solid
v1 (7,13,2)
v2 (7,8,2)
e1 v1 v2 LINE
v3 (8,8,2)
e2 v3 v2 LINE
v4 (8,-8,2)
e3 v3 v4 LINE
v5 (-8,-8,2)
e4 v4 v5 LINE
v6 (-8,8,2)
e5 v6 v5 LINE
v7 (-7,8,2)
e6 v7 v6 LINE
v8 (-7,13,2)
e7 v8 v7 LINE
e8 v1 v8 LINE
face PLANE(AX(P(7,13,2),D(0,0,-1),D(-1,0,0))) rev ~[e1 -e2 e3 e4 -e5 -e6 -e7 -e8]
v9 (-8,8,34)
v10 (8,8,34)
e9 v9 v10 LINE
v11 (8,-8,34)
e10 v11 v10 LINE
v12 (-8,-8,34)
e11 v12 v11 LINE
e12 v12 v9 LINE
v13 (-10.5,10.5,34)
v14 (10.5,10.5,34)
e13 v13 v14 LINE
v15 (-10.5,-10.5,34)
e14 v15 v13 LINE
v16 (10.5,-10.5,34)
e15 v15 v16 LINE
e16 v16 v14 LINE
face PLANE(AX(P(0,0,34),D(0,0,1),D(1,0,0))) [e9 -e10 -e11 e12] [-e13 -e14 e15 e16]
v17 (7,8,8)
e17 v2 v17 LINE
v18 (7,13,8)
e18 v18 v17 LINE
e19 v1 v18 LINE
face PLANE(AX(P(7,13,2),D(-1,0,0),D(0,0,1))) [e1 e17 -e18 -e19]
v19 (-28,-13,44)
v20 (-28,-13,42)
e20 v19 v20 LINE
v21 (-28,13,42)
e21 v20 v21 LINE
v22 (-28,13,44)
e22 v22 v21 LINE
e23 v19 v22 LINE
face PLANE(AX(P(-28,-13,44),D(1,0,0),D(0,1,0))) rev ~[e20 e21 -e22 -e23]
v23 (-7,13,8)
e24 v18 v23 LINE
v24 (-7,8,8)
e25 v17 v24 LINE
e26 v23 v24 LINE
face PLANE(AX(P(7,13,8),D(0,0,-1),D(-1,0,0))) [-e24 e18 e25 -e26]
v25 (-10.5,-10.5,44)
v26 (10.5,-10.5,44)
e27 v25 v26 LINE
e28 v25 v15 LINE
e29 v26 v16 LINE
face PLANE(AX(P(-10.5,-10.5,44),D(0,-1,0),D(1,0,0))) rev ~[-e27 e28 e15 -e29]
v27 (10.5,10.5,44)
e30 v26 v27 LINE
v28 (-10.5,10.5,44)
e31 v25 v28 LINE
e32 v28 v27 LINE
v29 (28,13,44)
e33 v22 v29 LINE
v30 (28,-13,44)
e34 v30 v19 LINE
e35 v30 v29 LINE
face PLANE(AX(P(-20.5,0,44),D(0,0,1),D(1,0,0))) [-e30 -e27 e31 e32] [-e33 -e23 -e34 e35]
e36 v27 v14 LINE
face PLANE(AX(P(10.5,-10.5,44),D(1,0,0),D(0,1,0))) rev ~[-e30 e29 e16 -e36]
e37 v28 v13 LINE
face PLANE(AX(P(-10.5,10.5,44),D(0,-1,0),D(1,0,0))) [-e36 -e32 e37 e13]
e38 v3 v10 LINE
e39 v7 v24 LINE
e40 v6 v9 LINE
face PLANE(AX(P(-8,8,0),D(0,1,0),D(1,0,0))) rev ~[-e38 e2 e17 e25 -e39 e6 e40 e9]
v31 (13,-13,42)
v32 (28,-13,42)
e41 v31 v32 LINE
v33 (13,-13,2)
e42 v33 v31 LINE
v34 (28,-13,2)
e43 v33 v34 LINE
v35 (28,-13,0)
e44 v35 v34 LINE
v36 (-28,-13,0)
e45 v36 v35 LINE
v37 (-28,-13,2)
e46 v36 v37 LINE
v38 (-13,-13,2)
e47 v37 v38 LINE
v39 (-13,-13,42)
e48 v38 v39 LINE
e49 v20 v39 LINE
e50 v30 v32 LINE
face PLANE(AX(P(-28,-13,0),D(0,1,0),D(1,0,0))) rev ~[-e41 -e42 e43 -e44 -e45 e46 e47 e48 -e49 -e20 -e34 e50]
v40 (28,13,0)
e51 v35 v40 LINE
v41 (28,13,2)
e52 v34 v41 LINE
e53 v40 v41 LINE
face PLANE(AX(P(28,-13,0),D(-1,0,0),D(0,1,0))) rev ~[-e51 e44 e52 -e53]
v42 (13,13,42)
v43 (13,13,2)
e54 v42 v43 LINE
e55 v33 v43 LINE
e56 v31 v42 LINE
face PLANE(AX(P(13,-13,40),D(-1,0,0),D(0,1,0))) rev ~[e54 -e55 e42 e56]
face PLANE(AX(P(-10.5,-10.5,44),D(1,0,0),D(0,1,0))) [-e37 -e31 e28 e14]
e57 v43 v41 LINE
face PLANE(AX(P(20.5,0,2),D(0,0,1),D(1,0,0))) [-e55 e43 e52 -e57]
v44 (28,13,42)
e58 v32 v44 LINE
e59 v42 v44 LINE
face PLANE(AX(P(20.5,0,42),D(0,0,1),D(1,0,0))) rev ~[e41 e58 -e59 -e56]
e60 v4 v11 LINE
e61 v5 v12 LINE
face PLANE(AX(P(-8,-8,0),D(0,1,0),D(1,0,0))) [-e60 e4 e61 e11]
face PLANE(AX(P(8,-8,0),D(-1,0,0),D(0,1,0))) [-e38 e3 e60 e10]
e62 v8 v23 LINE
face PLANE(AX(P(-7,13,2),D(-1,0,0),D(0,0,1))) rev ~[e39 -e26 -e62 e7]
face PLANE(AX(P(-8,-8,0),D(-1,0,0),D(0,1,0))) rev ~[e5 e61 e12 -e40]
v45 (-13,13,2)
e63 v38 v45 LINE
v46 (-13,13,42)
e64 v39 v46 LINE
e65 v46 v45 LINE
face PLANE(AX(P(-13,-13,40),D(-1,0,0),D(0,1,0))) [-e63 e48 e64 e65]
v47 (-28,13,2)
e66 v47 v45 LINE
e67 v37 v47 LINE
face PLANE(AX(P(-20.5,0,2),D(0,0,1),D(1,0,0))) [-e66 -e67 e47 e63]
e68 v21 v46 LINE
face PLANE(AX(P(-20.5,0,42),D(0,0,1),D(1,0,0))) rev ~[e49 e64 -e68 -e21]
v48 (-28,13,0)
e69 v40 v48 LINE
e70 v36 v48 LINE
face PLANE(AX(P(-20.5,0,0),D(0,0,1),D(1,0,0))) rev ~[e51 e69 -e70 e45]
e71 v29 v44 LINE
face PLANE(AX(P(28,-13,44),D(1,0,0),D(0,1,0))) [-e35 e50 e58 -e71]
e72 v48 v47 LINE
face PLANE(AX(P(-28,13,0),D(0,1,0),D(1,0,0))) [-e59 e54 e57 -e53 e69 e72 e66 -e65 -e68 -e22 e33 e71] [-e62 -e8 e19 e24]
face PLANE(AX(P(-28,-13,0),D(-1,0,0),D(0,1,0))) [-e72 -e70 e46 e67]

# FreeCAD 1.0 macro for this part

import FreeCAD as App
import Part
import Sketcher


def add_polygon(sketch, points):
    """Adds a closed chain of lines whose ends are joined by coincident constraints."""
    first, n = sketch.GeometryCount, len(points)
    for a, b in zip(points, points[1:] + points[:1]):
        sketch.addGeometry(Part.LineSegment(App.Vector(*a, 0), App.Vector(*b, 0)), False)
    for i in range(n):
        sketch.addConstraint(Sketcher.Constraint("Coincident", first + i, 2, first + (i + 1) % n, 1))

doc = App.newDocument("Part")
body = doc.addObject("PartDesign::Body", "Body")

# Sketch on XY plane
sketch1 = body.newObject("Sketcher::SketchObject", "Sketch")
sketch1.AttachmentSupport = (doc.getObject("XY_Plane"), [""])
sketch1.MapMode = "FlatFace"
add_polygon(sketch1, [(-13, 13), (-13, -13), (13, -13), (13, 13)])  # lines 0-3
sketch1.addConstraint([
    Sketcher.Constraint("Vertical", 0),
    Sketcher.Constraint("Horizontal", 1),
    Sketcher.Constraint("Vertical", 2),
    Sketcher.Constraint("Horizontal", 3),
    Sketcher.Constraint("Symmetric", 0, 2, 2, 2, -1, 1),
    Sketcher.Constraint("Equal", 3, 0),
    Sketcher.Constraint("DistanceX", 1, 1, 1, 2, 26.0),
])
pad1 = body.newObject("PartDesign::Pad", "Pad")
pad1.Profile = sketch1
pad1.Length = 2

# Sketch on XY plane
sketch2 = body.newObject("Sketcher::SketchObject", "Sketch001")
sketch2.AttachmentSupport = (doc.getObject("XY_Plane"), [""])
sketch2.MapMode = "FlatFace"
add_polygon(sketch2, [(-13, 13), (-13, -13), (13, -13), (13, 13)])  # lines 0-3
add_polygon(sketch2, [(8, -8), (-8, -8), (-8, 8), (8, 8)])  # lines 4-7
sketch2.addConstraint([
    Sketcher.Constraint("Vertical", 0),
    Sketcher.Constraint("Horizontal", 1),
    Sketcher.Constraint("Vertical", 2),
    Sketcher.Constraint("Horizontal", 3),
    Sketcher.Constraint("Horizontal", 4),
    Sketcher.Constraint("Vertical", 5),
    Sketcher.Constraint("Horizontal", 6),
    Sketcher.Constraint("Vertical", 7),
    Sketcher.Constraint("Symmetric", 0, 2, 2, 2, -1, 1),
    Sketcher.Constraint("Symmetric", 4, 2, 6, 2, -1, 1),
    Sketcher.Constraint("Equal", 3, 0),
    Sketcher.Constraint("Equal", 6, 5),
    Sketcher.Constraint("DistanceX", 1, 1, 1, 2, 26.0),
    Sketcher.Constraint("DistanceX", 4, 2, 4, 1, 16.0),
])
pad2 = body.newObject("PartDesign::Pad", "Pad001")
pad2.Profile = sketch2
pad2.Length = 40

# Sketch on XY plane
sketch3 = body.newObject("Sketcher::SketchObject", "Sketch002")
sketch3.AttachmentSupport = (doc.getObject("XY_Plane"), [""])
sketch3.MapMode = "FlatFace"
sketch3.AttachmentOffset = App.Placement(App.Vector(0, 0, 40), App.Rotation())
add_polygon(sketch3, [(-13, 13), (-13, -13), (13, -13), (13, 13)])  # lines 0-3
add_polygon(sketch3, [(9, -9), (-9, -9), (-9, 9), (9, 9)])  # lines 4-7
sketch3.addConstraint([
    Sketcher.Constraint("Vertical", 0),
    Sketcher.Constraint("Horizontal", 1),
    Sketcher.Constraint("Vertical", 2),
    Sketcher.Constraint("Horizontal", 3),
    Sketcher.Constraint("Horizontal", 4),
    Sketcher.Constraint("Vertical", 5),
    Sketcher.Constraint("Horizontal", 6),
    Sketcher.Constraint("Vertical", 7),
    Sketcher.Constraint("Symmetric", 0, 2, 2, 2, -1, 1),
    Sketcher.Constraint("Symmetric", 4, 2, 6, 2, -1, 1),
    Sketcher.Constraint("Equal", 3, 0),
    Sketcher.Constraint("Equal", 6, 5),
    Sketcher.Constraint("DistanceX", 1, 1, 1, 2, 26.0),
    Sketcher.Constraint("DistanceX", 4, 2, 4, 1, 18.0),
])
pad3 = body.newObject("PartDesign::Pad", "Pad002")
pad3.Profile = sketch3
pad3.Length = 4

# Sketch on XZ plane
sketch4 = body.newObject("Sketcher::SketchObject", "Sketch003")
sketch4.AttachmentSupport = (doc.getObject("XZ_Plane"), [""])
sketch4.MapMode = "FlatFace"
sketch4.AttachmentOffset = App.Placement(App.Vector(0, 0, -13), App.Rotation())
add_polygon(sketch4, [(7, 8), (7, 2), (-7, 2), (-7, 8)])  # lines 0-3
sketch4.addConstraint([
    Sketcher.Constraint("Vertical", 0),
    Sketcher.Constraint("Horizontal", 1),
    Sketcher.Constraint("Vertical", 2),
    Sketcher.Constraint("Horizontal", 3),
    Sketcher.Constraint("DistanceX", 1, 2, 1, 1, 14.0),
    Sketcher.Constraint("DistanceY", 0, 2, 0, 1, 6.0),
    Sketcher.Constraint("DistanceX", -1, 1, 0, 2, 7.0),
    Sketcher.Constraint("DistanceY", -1, 1, 0, 2, 2.0),
])
pocket1 = body.newObject("PartDesign::Pocket", "Pocket")
pocket1.Profile = sketch4
pocket1.Length = 15.3
pocket1.Reversed = True

# Sketch on XY plane
sketch5 = body.newObject("Sketcher::SketchObject", "Sketch004")
sketch5.AttachmentSupport = (doc.getObject("XY_Plane"), [""])
sketch5.MapMode = "FlatFace"
sketch5.AttachmentOffset = App.Placement(App.Vector(0, 0, 44), App.Rotation())
add_polygon(sketch5, [(-28, 13), (-28, -13), (-13, -13), (-13, 13)])  # lines 0-3
add_polygon(sketch5, [(13, 13), (13, -13), (28, -13), (28, 13)])  # lines 4-7
sketch5.addConstraint([
    Sketcher.Constraint("Vertical", 0),
    Sketcher.Constraint("Horizontal", 1),
    Sketcher.Constraint("Vertical", 2),
    Sketcher.Constraint("Horizontal", 3),
    Sketcher.Constraint("Vertical", 4),
    Sketcher.Constraint("Horizontal", 5),
    Sketcher.Constraint("Vertical", 6),
    Sketcher.Constraint("Horizontal", 7),
    Sketcher.Constraint("Symmetric", 2, 2, 4, 2, -1, 1),
    Sketcher.Constraint("Symmetric", 0, 2, 6, 2, -1, 1),
    Sketcher.Constraint("Horizontal", 1, 2, 4, 2),
    Sketcher.Constraint("DistanceX", 1, 1, 1, 2, 15.0),
    Sketcher.Constraint("DistanceY", 0, 2, 0, 1, 26.0),
    Sketcher.Constraint("DistanceX", 0, 2, -1, 1, 28.0),
])
pad4 = body.newObject("PartDesign::Pad", "Pad003")
pad4.Profile = sketch5
pad4.Length = 2
pad4.Reversed = True

# Sketch on XY plane
sketch6 = body.newObject("Sketcher::SketchObject", "Sketch005")
sketch6.AttachmentSupport = (doc.getObject("XY_Plane"), [""])
sketch6.MapMode = "FlatFace"
add_polygon(sketch6, [(-28, 13), (-28, -13), (-13, -13), (-13, 13)])  # lines 0-3
add_polygon(sketch6, [(13, 13), (13, -13), (28, -13), (28, 13)])  # lines 4-7
sketch6.addConstraint([
    Sketcher.Constraint("Vertical", 0),
    Sketcher.Constraint("Horizontal", 1),
    Sketcher.Constraint("Vertical", 2),
    Sketcher.Constraint("Horizontal", 3),
    Sketcher.Constraint("Vertical", 4),
    Sketcher.Constraint("Horizontal", 5),
    Sketcher.Constraint("Vertical", 6),
    Sketcher.Constraint("Horizontal", 7),
    Sketcher.Constraint("Symmetric", 2, 2, 4, 2, -1, 1),
    Sketcher.Constraint("Symmetric", 0, 2, 6, 2, -1, 1),
    Sketcher.Constraint("Horizontal", 1, 2, 4, 2),
    Sketcher.Constraint("DistanceX", 1, 1, 1, 2, 15.0),
    Sketcher.Constraint("DistanceY", 0, 2, 0, 1, 26.0),
    Sketcher.Constraint("DistanceX", 0, 2, -1, 1, 28.0),
])
pad5 = body.newObject("PartDesign::Pad", "Pad004")
pad5.Profile = sketch6
pad5.Length = 2

# Sketch on XY plane
sketch7 = body.newObject("Sketcher::SketchObject", "Sketch006")
sketch7.AttachmentSupport = (doc.getObject("XY_Plane"), [""])
sketch7.MapMode = "FlatFace"
sketch7.AttachmentOffset = App.Placement(App.Vector(0, 0, 44), App.Rotation())
add_polygon(sketch7, [(-10, 10), (-10, -10), (10, -10), (10, 10)])  # lines 0-3
sketch7.addConstraint([
    Sketcher.Constraint("Vertical", 0),
    Sketcher.Constraint("Horizontal", 1),
    Sketcher.Constraint("Vertical", 2),
    Sketcher.Constraint("Horizontal", 3),
    Sketcher.Constraint("Symmetric", 0, 2, 2, 2, -1, 1),
    Sketcher.Constraint("Equal", 3, 0),
    Sketcher.Constraint("DistanceX", 1, 1, 1, 2, 21.0),
])
pocket2 = body.newObject("PartDesign::Pocket", "Pocket001")
pocket2.Profile = sketch7
pocket2.Length = 10

doc.recompute()
